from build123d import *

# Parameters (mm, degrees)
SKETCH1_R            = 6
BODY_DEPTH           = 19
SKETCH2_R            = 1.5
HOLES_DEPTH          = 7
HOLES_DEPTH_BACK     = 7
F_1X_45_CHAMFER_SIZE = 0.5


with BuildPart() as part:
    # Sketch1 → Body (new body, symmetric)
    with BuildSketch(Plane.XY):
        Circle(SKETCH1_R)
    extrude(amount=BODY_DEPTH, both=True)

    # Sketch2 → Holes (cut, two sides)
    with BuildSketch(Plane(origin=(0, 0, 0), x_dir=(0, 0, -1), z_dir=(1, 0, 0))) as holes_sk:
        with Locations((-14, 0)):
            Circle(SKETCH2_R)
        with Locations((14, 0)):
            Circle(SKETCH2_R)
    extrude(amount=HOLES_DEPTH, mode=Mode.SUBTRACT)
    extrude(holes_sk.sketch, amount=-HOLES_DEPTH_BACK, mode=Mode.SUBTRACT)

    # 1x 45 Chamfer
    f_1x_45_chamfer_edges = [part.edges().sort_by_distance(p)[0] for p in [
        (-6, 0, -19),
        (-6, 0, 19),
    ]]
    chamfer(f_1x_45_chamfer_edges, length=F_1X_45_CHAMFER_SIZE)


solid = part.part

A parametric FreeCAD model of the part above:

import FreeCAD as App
import Part
import Sketcher
Q = App.Units.Quantity


def edges_at(feature, points):
    """Names of the edges that pass closest to the given points."""
    edges = feature.Shape.Edges
    near = lambda p: min(range(len(edges)), key=lambda i: edges[i].distToShape(Part.Vertex(*p))[0])
    return sorted({f"Edge{near(p) + 1}" for p in points})

doc = App.newDocument("Part")
params = doc.addObject("Spreadsheet::Sheet", "Params")
for row, (alias, value) in enumerate([
    ("sketch1_diameter", "12 mm"),
    ("pad1_length", "38 mm"),
    ("sketch2_diameter", "3 mm"),
    ("chamfer_size", "0.5 mm"),
], start=1):
    params.set(f"A{row}", alias)
    params.set(f"B{row}", "=" + value)
    params.setAlias(f"B{row}", alias)

body = doc.addObject("PartDesign::Body", "Body")

# Sketch on XY plane
sketch1 = doc.addObject("Sketcher::SketchObject", "Sketch")
body.addObject(sketch1)
sketch1.AttachmentSupport = (doc.XY_Plane, [""])
sketch1.MapMode = "FlatFace"
sketch1.addGeometry(Part.Circle(App.Vector(0, 0, 0), App.Vector(0, 0, 1), 6), False)
sketch1.addConstraint(Sketcher.Constraint("Coincident", 0, 3, -1, 1))
sketch1.addConstraint(Sketcher.Constraint("Diameter", 0, Q("12 mm")))
sketch1.setExpression("Constraints[1]", "Params.sketch1_diameter")
pad1 = doc.addObject("PartDesign::Pad", "Pad")
body.addObject(pad1)
pad1.Profile = sketch1
pad1.setExpression("Length", "Params.pad1_length")
pad1.Midplane = True

# Sketch on YZ plane
sketch2 = doc.addObject("Sketcher::SketchObject", "Sketch001")
body.addObject(sketch2)
sketch2.AttachmentSupport = (doc.YZ_Plane, [""])
sketch2.MapMode = "FlatFace"
sketch2.addGeometry(Part.Circle(App.Vector(0, 14, 0), App.Vector(0, 0, 1), 1.5), False)
sketch2.addGeometry(Part.Circle(App.Vector(0, -14, 0), App.Vector(0, 0, 1), 1.5), False)
sketch2.addConstraint(Sketcher.Constraint("Equal", 0, 1))
sketch2.addConstraint(Sketcher.Constraint("Symmetric", 0, 3, 1, 3, -1, 1))
sketch2.addConstraint(Sketcher.Constraint("PointOnObject", 0, 3, -2))
sketch2.addConstraint(Sketcher.Constraint("Diameter", 0, Q("3 mm")))
sketch2.addConstraint(Sketcher.Constraint("DistanceY", -1, 1, 0, 3, Q("14 mm")))
sketch2.setExpression("Constraints[3]", "Params.sketch2_diameter")
pocket1 = doc.addObject("PartDesign::Pocket", "Pocket")
body.addObject(pocket1)
pocket1.Profile = sketch2
pocket1.Type = "ThroughAll"
pocket1.Midplane = True
doc.recompute()

chamfer = doc.addObject("PartDesign::Chamfer", "Chamfer")
body.addObject(chamfer)
chamfer.Base = (pocket1, edges_at(pocket1, [(-6, 0, -19), (-6, 0, 19)]))
chamfer.setExpression("Size", "Params.chamfer_size")

doc.recompute()
